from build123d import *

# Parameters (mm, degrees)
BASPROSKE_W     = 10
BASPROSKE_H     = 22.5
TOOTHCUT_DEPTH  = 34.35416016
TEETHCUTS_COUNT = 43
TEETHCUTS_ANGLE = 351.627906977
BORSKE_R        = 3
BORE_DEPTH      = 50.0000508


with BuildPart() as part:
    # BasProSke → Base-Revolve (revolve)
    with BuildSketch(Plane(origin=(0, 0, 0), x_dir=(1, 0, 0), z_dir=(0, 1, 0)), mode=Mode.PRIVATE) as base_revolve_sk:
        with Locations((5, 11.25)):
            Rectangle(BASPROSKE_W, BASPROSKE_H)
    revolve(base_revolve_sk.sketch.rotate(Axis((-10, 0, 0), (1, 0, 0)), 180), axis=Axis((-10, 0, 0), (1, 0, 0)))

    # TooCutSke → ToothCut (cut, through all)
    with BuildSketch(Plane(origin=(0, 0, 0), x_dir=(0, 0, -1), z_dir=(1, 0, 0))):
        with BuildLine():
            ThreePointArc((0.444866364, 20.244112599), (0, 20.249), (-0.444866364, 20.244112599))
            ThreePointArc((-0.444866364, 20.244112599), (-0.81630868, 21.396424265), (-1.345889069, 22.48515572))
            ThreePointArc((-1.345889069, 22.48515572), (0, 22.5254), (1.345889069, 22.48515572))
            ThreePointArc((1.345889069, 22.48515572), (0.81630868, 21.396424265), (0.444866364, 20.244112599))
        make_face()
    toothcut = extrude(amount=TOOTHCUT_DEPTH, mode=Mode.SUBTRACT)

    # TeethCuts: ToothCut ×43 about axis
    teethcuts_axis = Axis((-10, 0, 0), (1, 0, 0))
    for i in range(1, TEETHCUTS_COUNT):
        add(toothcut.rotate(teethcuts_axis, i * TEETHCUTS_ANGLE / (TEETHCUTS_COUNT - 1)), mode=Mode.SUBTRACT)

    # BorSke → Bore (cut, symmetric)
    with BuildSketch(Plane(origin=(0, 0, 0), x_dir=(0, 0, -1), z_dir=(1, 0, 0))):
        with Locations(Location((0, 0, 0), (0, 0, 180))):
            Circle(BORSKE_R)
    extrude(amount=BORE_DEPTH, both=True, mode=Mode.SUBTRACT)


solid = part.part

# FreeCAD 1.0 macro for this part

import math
import FreeCAD as App
import Part
import Sketcher

doc = App.newDocument("Part")
body = doc.addObject("PartDesign::Body", "Body")

sketch1 = body.newObject("Sketcher::SketchObject", "Sketch")
sketch1.AttachmentSupport = (doc.getObject("XZ_Plane"), [""])
sketch1.MapMode = "FlatFace"
sketch1.addGeometry(Part.LineSegment(App.Vector(0, -22, 0), App.Vector(0, 0, 0)), False)
sketch1.addGeometry(Part.LineSegment(App.Vector(0, 0, 0), App.Vector(10, 0, 0)), False)
sketch1.addGeometry(Part.LineSegment(App.Vector(10, 0, 0), App.Vector(10, -22, 0)), False)
sketch1.addGeometry(Part.LineSegment(App.Vector(10, -22, 0), App.Vector(0, -22, 0)), False)
sketch1.addConstraint(Sketcher.Constraint("Coincident", 0, 2, 1, 1))
sketch1.addConstraint(Sketcher.Constraint("Coincident", 1, 2, 2, 1))
sketch1.addConstraint(Sketcher.Constraint("Coincident", 2, 2, 3, 1))
sketch1.addConstraint(Sketcher.Constraint("Coincident", 3, 2, 0, 1))
sketch1.addConstraint(Sketcher.Constraint("Vertical", 0))
sketch1.addConstraint(Sketcher.Constraint("Horizontal", 1))
sketch1.addConstraint(Sketcher.Constraint("Vertical", 2))
sketch1.addConstraint(Sketcher.Constraint("Horizontal", 3))
sketch1.addConstraint(Sketcher.Constraint("Coincident", 0, 2, -1, 1))
sketch1.addConstraint(Sketcher.Constraint("DistanceX", 1, 1, 1, 2, 10.0))
sketch1.addConstraint(Sketcher.Constraint("DistanceY", 0, 1, 0, 2, 22.5))
revolution = body.newObject("PartDesign::Revolution", "Revolution")
revolution.Profile = sketch1
revolution.ReferenceAxis = (sketch1, ["H_Axis"])
revolution.Angle = 360

sketch2 = body.newObject("Sketcher::SketchObject", "Sketch001")
sketch2.AttachmentSupport = (doc.getObject("YZ_Plane"), [""])
sketch2.MapMode = "FlatFace"
sketch2.addGeometry(Part.ArcOfCircle(Part.Circle(App.Vector(0, 0, 0), App.Vector(0, 0, 1), 20.2), math.radians(-1.26), math.radians(1.26)), False)
sketch2.addGeometry(Part.ArcOfCircle(Part.Circle(App.Vector(18.2, -8.8, 0), App.Vector(0, 0, 1), 8.6), math.radians(60.02), math.radians(76.17)), False)
sketch2.addGeometry(Part.ArcOfCircle(Part.Circle(App.Vector(0, 0, 0), App.Vector(0, 0, 1), 22.5), math.radians(-3.43), math.radians(3.43)), False)
sketch2.addGeometry(Part.ArcOfCircle(Part.Circle(App.Vector(18.2, 8.8, 0), App.Vector(0, 0, 1), 8.6), math.radians(-76.17), math.radians(-60.02)), False)
sketch2.addConstraint(Sketcher.Constraint("Coincident", 0, 1, 1, 2))
sketch2.addConstraint(Sketcher.Constraint("Coincident", 1, 1, 2, 1))
sketch2.addConstraint(Sketcher.Constraint("Coincident", 2, 2, 3, 2))
sketch2.addConstraint(Sketcher.Constraint("Coincident", 3, 1, 0, 2))
sketch2.addConstraint(Sketcher.Constraint("Coincident", 0, 3, -1, 1))
sketch2.addConstraint(Sketcher.Constraint("Coincident", 2, 3, -1, 1))
sketch2.addConstraint(Sketcher.Constraint("Equal", 1, 3))
sketch2.addConstraint(Sketcher.Constraint("Symmetric", 1, 3, 3, 3, -1))
sketch2.addConstraint(Sketcher.Constraint("Radius", 1, 8.6))
sketch2.addConstraint(Sketcher.Constraint("Radius", 0, 20.249))
sketch2.addConstraint(Sketcher.Constraint("Radius", 2, 22.5254))
sketch2.addConstraint(Sketcher.Constraint("DistanceY", 1, 3, -1, 1, 8.795541))
sketch2.addConstraint(Sketcher.Constraint("DistanceY", 1, 1, -1, 1, 1.345889))
pocket1 = body.newObject("PartDesign::Pocket", "Pocket")
pocket1.Profile = sketch2
pocket1.Type = "ThroughAll"
pocket1.Reversed = True
doc.recompute()

polarpattern = body.newObject("PartDesign::PolarPattern", "PolarPattern")
polarpattern.Originals = [pocket1]
polarpattern.Axis = (doc.getObject("X_Axis"), [""])
polarpattern.Angle = 360
polarpattern.Occurrences = 43
body.Tip = polarpattern

sketch3 = body.newObject("Sketcher::SketchObject", "Sketch002")
sketch3.AttachmentSupport = (doc.getObject("YZ_Plane"), [""])
sketch3.MapMode = "FlatFace"
sketch3.addGeometry(Part.Circle(App.Vector(0, 0, 0), App.Vector(0, 0, 1), 3), False)
sketch3.addConstraint(Sketcher.Constraint("Coincident", 0, 3, -1, 1))
sketch3.addConstraint(Sketcher.Constraint("Diameter", 0, 6.0))
pocket2 = body.newObject("PartDesign::Pocket", "Pocket001")
pocket2.Profile = sketch3
pocket2.Length = 100.000102
pocket2.Midplane = True

doc.recompute()
